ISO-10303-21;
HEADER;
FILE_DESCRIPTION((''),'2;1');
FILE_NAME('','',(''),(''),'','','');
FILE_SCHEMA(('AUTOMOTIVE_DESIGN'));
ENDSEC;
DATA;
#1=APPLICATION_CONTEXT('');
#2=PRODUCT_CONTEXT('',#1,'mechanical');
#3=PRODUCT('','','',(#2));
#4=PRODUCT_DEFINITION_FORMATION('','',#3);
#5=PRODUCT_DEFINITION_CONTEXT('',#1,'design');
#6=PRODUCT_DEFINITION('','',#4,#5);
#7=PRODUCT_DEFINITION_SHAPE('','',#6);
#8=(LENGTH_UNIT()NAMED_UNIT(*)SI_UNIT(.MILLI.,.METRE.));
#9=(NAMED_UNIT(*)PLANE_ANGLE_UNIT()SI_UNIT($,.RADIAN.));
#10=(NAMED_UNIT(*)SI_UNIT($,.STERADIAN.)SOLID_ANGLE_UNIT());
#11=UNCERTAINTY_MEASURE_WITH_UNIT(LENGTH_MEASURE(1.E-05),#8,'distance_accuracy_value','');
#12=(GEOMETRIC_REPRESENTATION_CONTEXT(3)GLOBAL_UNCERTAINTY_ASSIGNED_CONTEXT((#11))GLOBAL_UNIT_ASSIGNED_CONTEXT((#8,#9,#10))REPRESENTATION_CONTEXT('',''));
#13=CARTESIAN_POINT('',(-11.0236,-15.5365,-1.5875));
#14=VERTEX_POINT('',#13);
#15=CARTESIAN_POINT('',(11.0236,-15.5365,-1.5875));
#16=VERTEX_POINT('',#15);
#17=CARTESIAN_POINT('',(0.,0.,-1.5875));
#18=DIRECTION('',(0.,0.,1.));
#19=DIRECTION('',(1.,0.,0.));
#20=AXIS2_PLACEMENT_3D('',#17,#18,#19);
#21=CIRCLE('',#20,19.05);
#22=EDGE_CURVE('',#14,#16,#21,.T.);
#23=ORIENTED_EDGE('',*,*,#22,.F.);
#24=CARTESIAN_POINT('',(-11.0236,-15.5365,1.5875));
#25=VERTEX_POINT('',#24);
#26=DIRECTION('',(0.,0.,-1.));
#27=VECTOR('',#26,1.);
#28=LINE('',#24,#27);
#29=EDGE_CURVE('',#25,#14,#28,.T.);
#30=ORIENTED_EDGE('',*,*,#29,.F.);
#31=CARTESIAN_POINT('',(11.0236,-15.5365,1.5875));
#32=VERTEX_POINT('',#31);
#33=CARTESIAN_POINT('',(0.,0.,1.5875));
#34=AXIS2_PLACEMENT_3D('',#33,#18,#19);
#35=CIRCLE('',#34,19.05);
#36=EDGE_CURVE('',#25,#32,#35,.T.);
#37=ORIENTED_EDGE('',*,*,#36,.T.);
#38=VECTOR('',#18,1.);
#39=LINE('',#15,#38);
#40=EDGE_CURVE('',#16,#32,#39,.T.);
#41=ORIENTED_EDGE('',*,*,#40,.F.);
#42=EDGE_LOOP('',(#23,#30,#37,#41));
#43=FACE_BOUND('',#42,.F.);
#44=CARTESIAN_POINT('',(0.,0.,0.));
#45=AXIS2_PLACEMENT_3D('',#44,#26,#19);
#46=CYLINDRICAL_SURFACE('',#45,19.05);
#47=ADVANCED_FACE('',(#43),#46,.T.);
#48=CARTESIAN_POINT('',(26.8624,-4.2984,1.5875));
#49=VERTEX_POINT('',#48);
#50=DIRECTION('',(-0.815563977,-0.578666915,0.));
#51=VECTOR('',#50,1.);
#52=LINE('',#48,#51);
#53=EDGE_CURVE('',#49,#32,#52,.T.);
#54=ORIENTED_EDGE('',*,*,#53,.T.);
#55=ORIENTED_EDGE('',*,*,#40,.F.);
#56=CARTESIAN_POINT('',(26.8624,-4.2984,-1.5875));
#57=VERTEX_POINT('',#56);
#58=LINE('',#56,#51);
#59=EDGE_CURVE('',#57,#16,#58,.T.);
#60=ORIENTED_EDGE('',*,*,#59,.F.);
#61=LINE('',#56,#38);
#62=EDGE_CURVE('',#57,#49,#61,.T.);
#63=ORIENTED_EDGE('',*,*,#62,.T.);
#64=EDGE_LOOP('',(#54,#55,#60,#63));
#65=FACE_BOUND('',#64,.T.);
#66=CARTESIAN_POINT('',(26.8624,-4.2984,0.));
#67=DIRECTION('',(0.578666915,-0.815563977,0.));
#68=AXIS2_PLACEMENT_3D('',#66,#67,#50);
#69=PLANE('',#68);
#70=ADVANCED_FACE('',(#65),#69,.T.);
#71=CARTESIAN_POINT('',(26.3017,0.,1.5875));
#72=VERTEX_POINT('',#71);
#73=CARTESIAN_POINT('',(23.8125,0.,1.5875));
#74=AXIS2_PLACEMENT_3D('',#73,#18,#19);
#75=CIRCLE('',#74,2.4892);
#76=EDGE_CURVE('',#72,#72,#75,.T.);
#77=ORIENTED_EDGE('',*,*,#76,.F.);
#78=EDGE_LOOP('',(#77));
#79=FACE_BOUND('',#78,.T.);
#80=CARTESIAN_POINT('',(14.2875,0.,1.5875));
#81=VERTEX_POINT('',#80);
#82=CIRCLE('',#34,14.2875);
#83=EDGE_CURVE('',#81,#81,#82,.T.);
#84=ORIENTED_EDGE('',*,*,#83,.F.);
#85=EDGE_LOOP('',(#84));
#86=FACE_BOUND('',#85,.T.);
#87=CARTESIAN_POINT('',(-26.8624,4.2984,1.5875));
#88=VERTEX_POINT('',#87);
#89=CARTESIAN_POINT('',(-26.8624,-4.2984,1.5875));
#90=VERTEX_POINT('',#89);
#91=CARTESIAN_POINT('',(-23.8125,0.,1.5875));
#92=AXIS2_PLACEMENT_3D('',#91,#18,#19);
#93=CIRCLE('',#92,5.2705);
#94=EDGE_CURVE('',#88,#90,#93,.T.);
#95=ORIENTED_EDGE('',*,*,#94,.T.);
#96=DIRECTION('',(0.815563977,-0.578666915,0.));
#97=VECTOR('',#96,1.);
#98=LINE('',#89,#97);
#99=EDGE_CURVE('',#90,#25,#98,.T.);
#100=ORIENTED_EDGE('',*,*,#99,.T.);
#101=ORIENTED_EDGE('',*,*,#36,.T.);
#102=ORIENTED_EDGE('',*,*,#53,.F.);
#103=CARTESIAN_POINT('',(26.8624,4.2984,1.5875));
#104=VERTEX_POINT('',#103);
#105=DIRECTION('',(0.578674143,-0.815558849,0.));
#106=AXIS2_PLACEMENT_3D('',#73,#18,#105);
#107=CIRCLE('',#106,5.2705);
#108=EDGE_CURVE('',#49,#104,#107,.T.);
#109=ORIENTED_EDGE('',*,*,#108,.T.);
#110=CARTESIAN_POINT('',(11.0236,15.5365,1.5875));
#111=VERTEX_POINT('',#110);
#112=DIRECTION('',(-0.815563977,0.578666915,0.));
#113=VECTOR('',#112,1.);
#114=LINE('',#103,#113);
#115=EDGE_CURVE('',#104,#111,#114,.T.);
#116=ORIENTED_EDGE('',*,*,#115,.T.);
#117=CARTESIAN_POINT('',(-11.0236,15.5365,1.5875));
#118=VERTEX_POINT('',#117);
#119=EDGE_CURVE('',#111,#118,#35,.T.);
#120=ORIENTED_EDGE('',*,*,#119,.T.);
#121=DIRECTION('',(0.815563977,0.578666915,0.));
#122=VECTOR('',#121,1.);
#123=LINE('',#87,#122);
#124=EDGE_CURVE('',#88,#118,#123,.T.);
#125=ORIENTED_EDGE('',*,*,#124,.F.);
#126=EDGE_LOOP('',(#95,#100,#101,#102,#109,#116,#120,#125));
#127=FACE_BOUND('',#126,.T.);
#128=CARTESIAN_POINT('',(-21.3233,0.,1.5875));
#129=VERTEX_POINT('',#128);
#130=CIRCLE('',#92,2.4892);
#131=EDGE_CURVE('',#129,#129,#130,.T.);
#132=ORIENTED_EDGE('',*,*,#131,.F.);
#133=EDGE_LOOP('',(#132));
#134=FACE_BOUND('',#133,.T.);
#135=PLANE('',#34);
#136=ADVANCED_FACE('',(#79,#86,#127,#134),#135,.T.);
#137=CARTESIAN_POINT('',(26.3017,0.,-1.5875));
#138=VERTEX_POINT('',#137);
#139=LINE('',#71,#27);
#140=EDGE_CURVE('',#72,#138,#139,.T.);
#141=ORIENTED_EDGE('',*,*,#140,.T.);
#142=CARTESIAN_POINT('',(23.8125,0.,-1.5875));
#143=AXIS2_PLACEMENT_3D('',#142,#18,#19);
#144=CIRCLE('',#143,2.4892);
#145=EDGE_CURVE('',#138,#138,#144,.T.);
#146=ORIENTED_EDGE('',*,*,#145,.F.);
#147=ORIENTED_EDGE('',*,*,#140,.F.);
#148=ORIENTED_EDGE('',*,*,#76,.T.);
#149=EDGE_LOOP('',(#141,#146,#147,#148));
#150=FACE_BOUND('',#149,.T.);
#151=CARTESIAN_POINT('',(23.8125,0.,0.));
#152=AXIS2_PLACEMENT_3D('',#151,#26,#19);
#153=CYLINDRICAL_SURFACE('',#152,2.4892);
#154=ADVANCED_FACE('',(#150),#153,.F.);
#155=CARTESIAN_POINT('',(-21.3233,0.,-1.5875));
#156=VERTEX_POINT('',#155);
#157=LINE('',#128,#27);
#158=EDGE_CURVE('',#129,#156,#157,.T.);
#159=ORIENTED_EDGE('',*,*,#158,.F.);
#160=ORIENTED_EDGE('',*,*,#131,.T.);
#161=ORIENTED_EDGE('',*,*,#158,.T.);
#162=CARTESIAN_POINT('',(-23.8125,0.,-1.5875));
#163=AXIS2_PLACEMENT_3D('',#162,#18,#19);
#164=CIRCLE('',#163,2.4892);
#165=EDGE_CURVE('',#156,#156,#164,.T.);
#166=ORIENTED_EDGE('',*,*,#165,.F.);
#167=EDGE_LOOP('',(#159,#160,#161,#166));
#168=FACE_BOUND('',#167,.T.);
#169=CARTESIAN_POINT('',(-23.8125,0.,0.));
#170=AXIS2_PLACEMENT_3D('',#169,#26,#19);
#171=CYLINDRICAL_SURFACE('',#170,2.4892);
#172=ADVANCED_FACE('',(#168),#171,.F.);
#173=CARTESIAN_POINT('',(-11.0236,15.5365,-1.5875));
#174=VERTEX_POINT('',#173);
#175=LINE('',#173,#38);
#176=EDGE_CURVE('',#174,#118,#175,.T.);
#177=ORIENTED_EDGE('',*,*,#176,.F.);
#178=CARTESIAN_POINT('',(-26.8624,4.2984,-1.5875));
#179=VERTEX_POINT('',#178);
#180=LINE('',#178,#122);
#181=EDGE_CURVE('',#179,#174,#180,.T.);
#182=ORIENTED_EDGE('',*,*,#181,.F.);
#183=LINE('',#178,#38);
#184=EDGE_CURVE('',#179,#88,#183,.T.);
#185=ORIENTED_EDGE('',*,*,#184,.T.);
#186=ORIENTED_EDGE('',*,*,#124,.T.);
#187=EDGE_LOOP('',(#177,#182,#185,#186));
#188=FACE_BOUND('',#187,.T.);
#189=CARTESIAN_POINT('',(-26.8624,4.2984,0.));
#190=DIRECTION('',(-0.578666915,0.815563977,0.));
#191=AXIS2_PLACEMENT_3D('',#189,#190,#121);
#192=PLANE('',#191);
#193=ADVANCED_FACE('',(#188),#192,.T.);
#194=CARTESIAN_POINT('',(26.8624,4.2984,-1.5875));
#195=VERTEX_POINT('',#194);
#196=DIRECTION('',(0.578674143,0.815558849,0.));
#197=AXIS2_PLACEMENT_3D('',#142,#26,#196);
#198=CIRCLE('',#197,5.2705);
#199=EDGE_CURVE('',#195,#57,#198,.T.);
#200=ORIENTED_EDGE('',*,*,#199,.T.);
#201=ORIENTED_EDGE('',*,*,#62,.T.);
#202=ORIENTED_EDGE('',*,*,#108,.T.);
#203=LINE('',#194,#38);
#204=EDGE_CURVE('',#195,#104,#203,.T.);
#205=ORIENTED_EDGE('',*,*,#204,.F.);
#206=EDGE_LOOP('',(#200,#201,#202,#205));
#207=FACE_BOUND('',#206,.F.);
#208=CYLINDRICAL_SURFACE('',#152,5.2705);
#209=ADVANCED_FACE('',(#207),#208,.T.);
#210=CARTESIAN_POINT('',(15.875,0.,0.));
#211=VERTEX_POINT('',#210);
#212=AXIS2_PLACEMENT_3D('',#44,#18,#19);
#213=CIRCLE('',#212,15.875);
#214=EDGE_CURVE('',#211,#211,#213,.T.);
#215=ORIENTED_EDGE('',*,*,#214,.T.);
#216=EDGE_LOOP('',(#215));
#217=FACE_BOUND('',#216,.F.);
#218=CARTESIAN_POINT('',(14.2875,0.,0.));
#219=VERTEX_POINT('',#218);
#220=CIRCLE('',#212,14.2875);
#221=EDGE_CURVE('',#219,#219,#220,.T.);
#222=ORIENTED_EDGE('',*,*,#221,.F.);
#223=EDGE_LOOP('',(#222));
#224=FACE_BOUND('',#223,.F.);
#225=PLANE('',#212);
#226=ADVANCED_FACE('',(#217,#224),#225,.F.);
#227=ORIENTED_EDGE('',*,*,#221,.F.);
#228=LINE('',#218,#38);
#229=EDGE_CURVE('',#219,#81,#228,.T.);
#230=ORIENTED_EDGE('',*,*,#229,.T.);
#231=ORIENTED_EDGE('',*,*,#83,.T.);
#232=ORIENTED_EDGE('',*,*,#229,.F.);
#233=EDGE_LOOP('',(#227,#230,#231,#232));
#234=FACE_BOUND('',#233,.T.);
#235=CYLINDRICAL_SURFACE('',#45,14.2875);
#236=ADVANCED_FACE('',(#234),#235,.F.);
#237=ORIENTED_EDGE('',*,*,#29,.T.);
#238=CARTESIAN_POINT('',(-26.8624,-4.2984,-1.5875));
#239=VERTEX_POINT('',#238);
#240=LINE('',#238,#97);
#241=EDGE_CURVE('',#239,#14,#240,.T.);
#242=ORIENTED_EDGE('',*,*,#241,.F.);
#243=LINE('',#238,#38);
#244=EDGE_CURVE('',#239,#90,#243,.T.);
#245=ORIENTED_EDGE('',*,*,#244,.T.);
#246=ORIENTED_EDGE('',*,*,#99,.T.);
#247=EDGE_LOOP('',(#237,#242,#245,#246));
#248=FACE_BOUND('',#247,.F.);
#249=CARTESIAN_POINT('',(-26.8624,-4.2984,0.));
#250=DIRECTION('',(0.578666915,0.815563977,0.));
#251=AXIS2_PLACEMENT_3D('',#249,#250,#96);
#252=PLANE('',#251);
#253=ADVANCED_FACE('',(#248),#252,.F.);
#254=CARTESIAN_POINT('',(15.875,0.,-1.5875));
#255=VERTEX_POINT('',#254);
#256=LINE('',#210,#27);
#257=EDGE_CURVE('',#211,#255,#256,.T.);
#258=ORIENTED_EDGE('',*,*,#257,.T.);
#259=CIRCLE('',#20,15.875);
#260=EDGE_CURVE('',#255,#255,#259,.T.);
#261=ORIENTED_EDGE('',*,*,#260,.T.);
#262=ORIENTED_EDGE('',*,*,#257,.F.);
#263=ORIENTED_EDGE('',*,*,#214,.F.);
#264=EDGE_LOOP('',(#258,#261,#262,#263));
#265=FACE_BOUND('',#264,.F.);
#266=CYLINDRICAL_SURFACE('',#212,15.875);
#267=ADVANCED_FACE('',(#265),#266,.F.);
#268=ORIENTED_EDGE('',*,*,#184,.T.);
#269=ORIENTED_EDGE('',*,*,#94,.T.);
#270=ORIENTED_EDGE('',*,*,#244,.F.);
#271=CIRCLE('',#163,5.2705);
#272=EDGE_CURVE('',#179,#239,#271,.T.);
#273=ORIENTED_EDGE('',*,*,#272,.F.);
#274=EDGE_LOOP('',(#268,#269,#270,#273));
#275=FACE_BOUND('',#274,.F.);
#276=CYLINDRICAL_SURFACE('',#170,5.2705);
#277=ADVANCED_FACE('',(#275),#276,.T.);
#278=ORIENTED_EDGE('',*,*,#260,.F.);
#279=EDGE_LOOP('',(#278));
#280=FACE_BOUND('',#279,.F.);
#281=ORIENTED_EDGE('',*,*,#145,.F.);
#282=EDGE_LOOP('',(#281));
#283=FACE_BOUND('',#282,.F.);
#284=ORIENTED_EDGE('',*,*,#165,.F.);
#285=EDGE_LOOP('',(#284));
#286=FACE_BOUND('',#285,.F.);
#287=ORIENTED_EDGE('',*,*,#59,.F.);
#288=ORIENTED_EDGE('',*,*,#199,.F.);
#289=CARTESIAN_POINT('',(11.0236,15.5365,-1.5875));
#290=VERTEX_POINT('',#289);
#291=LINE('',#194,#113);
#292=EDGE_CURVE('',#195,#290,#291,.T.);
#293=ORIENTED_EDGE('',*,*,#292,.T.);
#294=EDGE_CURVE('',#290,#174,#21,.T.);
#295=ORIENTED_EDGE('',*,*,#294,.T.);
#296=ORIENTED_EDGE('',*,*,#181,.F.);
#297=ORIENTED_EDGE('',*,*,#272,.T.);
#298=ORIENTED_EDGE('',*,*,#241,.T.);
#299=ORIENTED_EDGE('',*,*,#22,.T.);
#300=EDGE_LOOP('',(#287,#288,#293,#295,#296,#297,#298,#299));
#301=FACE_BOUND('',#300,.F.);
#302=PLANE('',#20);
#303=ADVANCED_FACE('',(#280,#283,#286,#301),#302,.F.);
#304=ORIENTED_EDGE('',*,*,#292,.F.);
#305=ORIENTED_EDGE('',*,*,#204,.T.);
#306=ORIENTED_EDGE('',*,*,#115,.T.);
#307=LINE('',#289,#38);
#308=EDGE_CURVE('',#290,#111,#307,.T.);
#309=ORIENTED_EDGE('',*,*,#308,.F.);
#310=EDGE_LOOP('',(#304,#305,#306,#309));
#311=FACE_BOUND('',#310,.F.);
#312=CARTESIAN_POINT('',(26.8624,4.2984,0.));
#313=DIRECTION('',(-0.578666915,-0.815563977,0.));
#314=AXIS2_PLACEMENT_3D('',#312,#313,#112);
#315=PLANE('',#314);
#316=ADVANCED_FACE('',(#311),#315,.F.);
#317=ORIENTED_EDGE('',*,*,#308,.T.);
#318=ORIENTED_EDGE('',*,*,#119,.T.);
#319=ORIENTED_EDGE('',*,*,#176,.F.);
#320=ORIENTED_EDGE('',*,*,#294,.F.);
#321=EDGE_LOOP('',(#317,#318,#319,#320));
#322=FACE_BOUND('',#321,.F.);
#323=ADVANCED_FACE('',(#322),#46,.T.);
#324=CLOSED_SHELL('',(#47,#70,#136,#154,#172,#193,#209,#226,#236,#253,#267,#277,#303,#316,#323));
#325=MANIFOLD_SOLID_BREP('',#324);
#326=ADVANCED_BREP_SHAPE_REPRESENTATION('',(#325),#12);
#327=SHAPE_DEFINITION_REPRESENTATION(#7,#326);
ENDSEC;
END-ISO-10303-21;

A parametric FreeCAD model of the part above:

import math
import FreeCAD as App
import Part
import Sketcher

V = App.Vector
Q = App.Units.Quantity

doc = App.newDocument("Part")
body = doc.addObject("PartDesign::Body", "Body")

# Sketch on XY plane
sketch1 = body.newObject("Sketcher::SketchObject", "Sketch")
sketch1.AttachmentSupport = (doc.getObject("XY_Plane"), [""])
sketch1.MapMode = "FlatFace"
sketch1.addGeometry([
    Part.ArcOfCircle(Part.Circle(V(0, 0, 0), V(0, 0, 1), 19.05), math.radians(-125.356813), math.radians(-54.643187)),  # 0
    Part.LineSegment(V(11.0236, -15.5365, 0), V(26.8624, -4.2984, 0)),  # 1
    Part.ArcOfCircle(Part.Circle(V(23.8125, 0, 0), V(0, 0, 1), 5.2705), math.radians(-54.642657), math.radians(54.642657)),  # 2
    Part.LineSegment(V(26.8624, 4.2984, 0), V(11.0236, 15.5365, 0)),  # 3
    Part.ArcOfCircle(Part.Circle(V(0, 0, 0), V(0, 0, 1), 19.05), math.radians(54.643187), math.radians(125.356813)),  # 4
    Part.LineSegment(V(-11.0236, 15.5365, 0), V(-26.8624, 4.2984, 0)),  # 5
    Part.ArcOfCircle(Part.Circle(V(-23.8125, 0, 0), V(0, 0, 1), 5.2705), math.radians(125.357343), math.radians(234.642657)),  # 6
    Part.LineSegment(V(-26.8624, -4.2984, 0), V(-11.0236, -15.5365, 0)),  # 7
    Part.Circle(V(0, 0, 0), V(0, 0, 1), 14.2875),  # 8
    Part.Circle(V(23.8125, 0, 0), V(0, 0, 1), 2.4892),  # 9
    Part.Circle(V(-23.8125, 0, 0), V(0, 0, 1), 2.4892),  # 10
], False)
sketch1.addConstraint([
    Sketcher.Constraint("Tangent", 0, 2, 1, 1),
    Sketcher.Constraint("Tangent", 1, 2, 2, 1),
    Sketcher.Constraint("Tangent", 2, 2, 3, 1),
    Sketcher.Constraint("Tangent", 3, 2, 4, 1),
    Sketcher.Constraint("Tangent", 4, 2, 5, 1),
    Sketcher.Constraint("Tangent", 5, 2, 6, 1),
    Sketcher.Constraint("Tangent", 6, 2, 7, 1),
    Sketcher.Constraint("Tangent", 7, 2, 0, 1),
    Sketcher.Constraint("Coincident", 0, 3, -1, 1),
    Sketcher.Constraint("Coincident", 4, 3, -1, 1),
    Sketcher.Constraint("Coincident", 8, 3, -1, 1),
    Sketcher.Constraint("Coincident", 9, 3, 2, 3),
    Sketcher.Constraint("Coincident", 10, 3, 6, 3),
    Sketcher.Constraint("Equal", 0, 4),
    Sketcher.Constraint("Equal", 2, 6),
    Sketcher.Constraint("Equal", 9, 10),
    Sketcher.Constraint("Symmetric", 2, 3, 6, 3, -1, 1),
    Sketcher.Constraint("PointOnObject", 2, 3, -1),
    Sketcher.Constraint("Diameter", 8, Q("1.125 in")),
    Sketcher.Constraint("Diameter", 9, Q("0.196 in")),
    Sketcher.Constraint("Radius", 2, Q("0.2075 in")),
    Sketcher.Constraint("Radius", 0, Q("0.75 in")),
    Sketcher.Constraint("DistanceX", 6, 3, 2, 3, Q("1.875 in")),
])
pad1 = body.newObject("PartDesign::Pad", "Pad")
pad1.Profile = sketch1
pad1.Length = Q("0.0625 in")

# Sketch on XY plane
sketch2 = body.newObject("Sketcher::SketchObject", "Sketch001")
sketch2.AttachmentSupport = (doc.getObject("XY_Plane"), [""])
sketch2.MapMode = "FlatFace"
sketch2.addGeometry([
    Part.ArcOfCircle(Part.Circle(V(0, 0, 0), V(0, 0, 1), 19.05), math.radians(-125.356813), math.radians(-54.643187)),  # 0
    Part.LineSegment(V(11.0236, -15.5365, 0), V(26.8624, -4.2984, 0)),  # 1
    Part.ArcOfCircle(Part.Circle(V(23.8125, 0, 0), V(0, 0, 1), 5.2705), math.radians(-54.642657), math.radians(54.642657)),  # 2
    Part.LineSegment(V(26.8624, 4.2984, 0), V(11.0236, 15.5365, 0)),  # 3
    Part.ArcOfCircle(Part.Circle(V(0, 0, 0), V(0, 0, 1), 19.05), math.radians(54.643187), math.radians(125.356813)),  # 4
    Part.LineSegment(V(-11.0236, 15.5365, 0), V(-26.8624, 4.2984, 0)),  # 5
    Part.ArcOfCircle(Part.Circle(V(-23.8125, 0, 0), V(0, 0, 1), 5.2705), math.radians(125.357343), math.radians(234.642657)),  # 6
    Part.LineSegment(V(-26.8624, -4.2984, 0), V(-11.0236, -15.5365, 0)),  # 7
    Part.Circle(V(0, 0, 0), V(0, 0, 1), 15.875),  # 8
    Part.Circle(V(23.8125, 0, 0), V(0, 0, 1), 2.4892),  # 9
    Part.Circle(V(-23.8125, 0, 0), V(0, 0, 1), 2.4892),  # 10
], False)
sketch2.addConstraint([
    Sketcher.Constraint("Tangent", 0, 2, 1, 1),
    Sketcher.Constraint("Tangent", 1, 2, 2, 1),
    Sketcher.Constraint("Tangent", 2, 2, 3, 1),
    Sketcher.Constraint("Tangent", 3, 2, 4, 1),
    Sketcher.Constraint("Tangent", 4, 2, 5, 1),
    Sketcher.Constraint("Tangent", 5, 2, 6, 1),
    Sketcher.Constraint("Tangent", 6, 2, 7, 1),
    Sketcher.Constraint("Tangent", 7, 2, 0, 1),
    Sketcher.Constraint("Coincident", 0, 3, -1, 1),
    Sketcher.Constraint("Coincident", 4, 3, -1, 1),
    Sketcher.Constraint("Coincident", 8, 3, -1, 1),
    Sketcher.Constraint("Coincident", 9, 3, 2, 3),
    Sketcher.Constraint("Coincident", 10, 3, 6, 3),
    Sketcher.Constraint("Equal", 0, 4),
    Sketcher.Constraint("Equal", 2, 6),
    Sketcher.Constraint("Equal", 9, 10),
    Sketcher.Constraint("Symmetric", 2, 3, 6, 3, -1, 1),
    Sketcher.Constraint("PointOnObject", 2, 3, -1),
    Sketcher.Constraint("Diameter", 8, Q("1.25 in")),
    Sketcher.Constraint("Diameter", 9, Q("0.196 in")),
    Sketcher.Constraint("Radius", 2, Q("0.2075 in")),
    Sketcher.Constraint("Radius", 0, Q("0.75 in")),
    Sketcher.Constraint("DistanceX", 6, 3, 2, 3, Q("1.875 in")),
])
pad2 = body.newObject("PartDesign::Pad", "Pad001")
pad2.Profile = sketch2
pad2.Length = Q("0.0625 in")
pad2.Reversed = True

doc.recompute()
